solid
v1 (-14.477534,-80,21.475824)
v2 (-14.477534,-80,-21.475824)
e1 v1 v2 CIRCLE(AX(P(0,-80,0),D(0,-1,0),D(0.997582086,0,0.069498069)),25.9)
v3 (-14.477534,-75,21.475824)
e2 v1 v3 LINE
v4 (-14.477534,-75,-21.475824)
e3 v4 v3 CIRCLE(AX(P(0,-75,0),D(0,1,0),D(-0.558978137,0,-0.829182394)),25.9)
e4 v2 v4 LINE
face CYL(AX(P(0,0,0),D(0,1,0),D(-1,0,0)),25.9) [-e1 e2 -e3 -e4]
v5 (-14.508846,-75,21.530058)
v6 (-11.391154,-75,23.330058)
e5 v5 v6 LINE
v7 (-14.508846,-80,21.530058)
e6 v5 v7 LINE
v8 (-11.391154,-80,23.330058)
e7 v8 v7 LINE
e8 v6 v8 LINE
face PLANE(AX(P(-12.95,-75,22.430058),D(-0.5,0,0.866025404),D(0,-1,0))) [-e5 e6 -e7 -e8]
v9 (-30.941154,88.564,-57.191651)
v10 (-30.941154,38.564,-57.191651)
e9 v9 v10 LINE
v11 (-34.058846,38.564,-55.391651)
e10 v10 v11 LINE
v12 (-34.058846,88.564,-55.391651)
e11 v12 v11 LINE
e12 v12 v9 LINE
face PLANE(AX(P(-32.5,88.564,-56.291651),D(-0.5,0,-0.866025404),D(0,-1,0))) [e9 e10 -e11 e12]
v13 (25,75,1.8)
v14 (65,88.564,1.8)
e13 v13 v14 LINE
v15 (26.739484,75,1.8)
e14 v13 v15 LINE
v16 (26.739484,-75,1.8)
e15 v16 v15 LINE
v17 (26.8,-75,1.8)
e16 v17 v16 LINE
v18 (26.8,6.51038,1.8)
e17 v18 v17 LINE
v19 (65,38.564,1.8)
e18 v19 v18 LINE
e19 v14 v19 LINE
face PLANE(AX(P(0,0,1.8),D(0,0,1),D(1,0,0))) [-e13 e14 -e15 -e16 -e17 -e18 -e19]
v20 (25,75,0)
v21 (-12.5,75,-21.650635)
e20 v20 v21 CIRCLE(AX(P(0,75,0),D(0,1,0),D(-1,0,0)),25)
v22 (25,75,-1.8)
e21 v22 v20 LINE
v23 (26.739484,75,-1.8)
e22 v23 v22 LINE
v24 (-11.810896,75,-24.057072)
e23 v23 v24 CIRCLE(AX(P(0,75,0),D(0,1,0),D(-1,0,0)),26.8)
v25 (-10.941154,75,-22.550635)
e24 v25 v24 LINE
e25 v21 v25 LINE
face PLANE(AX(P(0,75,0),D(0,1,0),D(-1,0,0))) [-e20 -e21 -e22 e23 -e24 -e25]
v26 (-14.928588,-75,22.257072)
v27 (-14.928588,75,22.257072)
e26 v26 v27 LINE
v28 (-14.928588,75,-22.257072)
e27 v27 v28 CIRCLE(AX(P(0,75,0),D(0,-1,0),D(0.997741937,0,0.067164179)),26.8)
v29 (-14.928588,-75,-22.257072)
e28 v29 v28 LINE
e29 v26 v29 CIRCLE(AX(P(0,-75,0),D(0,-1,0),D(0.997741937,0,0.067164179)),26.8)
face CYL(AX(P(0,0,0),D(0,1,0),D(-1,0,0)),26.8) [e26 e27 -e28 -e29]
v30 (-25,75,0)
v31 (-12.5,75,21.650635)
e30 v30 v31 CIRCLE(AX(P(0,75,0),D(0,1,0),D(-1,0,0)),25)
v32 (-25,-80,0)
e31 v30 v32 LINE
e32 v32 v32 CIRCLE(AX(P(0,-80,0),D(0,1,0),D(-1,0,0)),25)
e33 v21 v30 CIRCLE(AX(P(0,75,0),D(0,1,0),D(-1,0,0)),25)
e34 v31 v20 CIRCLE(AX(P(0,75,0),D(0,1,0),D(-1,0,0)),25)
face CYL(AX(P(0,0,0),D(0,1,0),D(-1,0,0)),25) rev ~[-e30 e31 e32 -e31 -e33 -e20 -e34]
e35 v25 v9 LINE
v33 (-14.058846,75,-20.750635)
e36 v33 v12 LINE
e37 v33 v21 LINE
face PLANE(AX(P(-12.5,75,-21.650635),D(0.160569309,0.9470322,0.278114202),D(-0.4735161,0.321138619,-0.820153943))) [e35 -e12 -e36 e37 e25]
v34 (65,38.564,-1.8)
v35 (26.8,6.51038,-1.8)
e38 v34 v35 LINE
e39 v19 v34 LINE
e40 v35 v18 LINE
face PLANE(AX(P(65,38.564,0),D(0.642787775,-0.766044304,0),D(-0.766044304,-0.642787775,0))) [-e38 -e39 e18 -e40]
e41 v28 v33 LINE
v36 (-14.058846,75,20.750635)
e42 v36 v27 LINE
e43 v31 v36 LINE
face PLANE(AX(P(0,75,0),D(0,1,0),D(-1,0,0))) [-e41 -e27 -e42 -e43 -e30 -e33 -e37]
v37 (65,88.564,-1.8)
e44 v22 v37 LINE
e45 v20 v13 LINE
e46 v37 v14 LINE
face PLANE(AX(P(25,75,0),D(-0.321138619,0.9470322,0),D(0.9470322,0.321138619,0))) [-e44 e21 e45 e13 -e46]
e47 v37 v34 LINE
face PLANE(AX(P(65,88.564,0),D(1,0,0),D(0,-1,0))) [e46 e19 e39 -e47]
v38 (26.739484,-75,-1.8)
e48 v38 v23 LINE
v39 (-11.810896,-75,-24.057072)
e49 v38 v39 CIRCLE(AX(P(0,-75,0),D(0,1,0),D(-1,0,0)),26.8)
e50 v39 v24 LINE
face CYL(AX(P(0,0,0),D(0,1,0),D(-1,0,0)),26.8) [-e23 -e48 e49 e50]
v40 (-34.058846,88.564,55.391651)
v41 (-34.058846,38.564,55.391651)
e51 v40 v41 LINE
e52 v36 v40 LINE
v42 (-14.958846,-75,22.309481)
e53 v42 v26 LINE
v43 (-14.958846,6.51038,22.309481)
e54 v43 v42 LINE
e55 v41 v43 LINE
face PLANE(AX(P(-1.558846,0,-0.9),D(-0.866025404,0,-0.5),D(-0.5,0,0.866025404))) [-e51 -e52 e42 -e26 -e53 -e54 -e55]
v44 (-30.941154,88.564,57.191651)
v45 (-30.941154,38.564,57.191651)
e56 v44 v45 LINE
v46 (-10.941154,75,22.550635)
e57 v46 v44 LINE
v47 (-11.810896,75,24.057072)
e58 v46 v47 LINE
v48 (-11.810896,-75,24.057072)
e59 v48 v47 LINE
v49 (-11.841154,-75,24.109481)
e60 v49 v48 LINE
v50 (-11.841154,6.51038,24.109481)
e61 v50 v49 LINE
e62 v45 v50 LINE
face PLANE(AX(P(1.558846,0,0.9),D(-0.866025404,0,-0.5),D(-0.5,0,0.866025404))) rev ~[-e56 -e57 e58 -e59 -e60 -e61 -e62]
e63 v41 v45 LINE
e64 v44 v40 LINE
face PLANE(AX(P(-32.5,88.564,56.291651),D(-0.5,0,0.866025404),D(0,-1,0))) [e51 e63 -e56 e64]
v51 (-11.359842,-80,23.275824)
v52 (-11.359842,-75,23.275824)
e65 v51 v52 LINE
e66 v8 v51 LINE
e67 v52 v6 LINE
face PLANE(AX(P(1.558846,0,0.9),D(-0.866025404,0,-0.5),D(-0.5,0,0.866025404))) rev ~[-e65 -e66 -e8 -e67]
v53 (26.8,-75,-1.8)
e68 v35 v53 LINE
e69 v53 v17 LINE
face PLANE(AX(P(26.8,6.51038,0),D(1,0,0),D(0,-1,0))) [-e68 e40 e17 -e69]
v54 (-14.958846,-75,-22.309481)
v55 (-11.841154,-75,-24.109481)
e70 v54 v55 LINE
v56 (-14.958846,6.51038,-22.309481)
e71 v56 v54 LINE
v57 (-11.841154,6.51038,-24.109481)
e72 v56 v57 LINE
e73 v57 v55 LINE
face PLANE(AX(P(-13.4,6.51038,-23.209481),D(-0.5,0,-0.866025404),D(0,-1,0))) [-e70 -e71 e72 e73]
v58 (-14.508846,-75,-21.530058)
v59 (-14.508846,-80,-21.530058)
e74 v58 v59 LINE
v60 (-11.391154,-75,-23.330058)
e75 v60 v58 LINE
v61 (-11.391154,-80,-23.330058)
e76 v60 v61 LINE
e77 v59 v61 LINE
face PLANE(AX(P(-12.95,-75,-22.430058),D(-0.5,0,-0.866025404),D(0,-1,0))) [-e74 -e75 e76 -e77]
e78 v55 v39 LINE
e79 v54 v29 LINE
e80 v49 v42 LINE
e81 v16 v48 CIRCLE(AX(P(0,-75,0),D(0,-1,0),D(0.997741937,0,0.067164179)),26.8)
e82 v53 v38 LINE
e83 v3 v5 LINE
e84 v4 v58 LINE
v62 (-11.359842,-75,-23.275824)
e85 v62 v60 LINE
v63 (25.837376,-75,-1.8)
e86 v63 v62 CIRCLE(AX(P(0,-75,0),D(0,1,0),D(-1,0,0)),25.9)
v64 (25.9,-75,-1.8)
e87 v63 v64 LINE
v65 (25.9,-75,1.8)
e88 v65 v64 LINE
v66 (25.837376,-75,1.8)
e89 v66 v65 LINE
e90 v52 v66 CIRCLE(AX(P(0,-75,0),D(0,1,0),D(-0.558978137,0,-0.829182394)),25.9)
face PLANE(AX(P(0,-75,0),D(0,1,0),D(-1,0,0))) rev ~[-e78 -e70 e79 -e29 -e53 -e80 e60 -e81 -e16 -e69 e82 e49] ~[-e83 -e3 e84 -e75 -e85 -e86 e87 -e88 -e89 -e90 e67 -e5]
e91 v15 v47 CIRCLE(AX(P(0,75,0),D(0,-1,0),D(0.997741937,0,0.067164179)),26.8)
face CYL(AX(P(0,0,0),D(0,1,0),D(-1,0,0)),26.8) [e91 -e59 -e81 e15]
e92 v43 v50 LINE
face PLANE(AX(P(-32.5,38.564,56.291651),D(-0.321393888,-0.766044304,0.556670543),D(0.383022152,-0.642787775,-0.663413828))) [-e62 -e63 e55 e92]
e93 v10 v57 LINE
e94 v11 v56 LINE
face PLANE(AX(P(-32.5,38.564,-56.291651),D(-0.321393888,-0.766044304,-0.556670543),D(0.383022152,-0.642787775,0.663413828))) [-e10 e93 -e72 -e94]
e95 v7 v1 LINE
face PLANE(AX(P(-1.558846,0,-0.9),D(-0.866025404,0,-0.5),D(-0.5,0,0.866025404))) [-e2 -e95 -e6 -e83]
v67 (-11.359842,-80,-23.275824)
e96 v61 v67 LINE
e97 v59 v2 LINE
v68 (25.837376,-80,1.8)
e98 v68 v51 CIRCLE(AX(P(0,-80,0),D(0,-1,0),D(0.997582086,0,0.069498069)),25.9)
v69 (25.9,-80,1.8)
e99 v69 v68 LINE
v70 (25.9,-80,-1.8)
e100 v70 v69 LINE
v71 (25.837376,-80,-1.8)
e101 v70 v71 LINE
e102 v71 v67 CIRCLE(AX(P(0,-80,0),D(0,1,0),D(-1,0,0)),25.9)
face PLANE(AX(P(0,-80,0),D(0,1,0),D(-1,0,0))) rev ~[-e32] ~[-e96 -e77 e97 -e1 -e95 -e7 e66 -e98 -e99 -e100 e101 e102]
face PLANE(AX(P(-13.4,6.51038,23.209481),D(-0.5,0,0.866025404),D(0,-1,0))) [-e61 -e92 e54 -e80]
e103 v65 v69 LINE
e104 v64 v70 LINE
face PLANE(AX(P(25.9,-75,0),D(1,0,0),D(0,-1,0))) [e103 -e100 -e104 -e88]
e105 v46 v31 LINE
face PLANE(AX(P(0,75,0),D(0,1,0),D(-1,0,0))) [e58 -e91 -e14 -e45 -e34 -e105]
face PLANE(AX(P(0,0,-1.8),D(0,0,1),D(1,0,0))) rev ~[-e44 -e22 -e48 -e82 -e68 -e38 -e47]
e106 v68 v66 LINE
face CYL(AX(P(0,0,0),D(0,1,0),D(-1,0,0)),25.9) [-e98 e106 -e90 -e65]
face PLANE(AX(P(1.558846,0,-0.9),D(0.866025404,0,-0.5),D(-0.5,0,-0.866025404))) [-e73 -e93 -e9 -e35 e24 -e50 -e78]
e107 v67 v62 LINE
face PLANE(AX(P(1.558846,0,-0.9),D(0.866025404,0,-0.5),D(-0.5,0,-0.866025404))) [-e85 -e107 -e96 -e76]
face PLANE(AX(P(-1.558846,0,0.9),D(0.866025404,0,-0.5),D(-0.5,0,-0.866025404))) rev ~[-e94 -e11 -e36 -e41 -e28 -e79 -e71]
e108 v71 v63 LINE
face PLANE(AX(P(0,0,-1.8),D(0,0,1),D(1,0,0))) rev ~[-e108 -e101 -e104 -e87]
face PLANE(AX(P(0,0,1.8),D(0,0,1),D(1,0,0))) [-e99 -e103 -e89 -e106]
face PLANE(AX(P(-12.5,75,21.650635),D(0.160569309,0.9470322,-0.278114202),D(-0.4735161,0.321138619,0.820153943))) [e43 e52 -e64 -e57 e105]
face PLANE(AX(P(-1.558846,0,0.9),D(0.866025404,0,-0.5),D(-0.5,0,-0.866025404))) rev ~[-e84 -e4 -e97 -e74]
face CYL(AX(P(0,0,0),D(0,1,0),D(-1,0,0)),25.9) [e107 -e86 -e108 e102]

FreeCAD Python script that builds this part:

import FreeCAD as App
import Part
import Sketcher
from FreeCAD import Vector
Q = App.Units.Quantity


def add_polygon(sketch, points):
    """Adds a closed chain of lines whose ends are joined by coincident constraints."""
    first, n = sketch.GeometryCount, len(points)
    for a, b in zip(points, points[1:] + points[:1]):
        sketch.addGeometry(Part.LineSegment(App.Vector(*a, 0), App.Vector(*b, 0)), False)
    for i in range(n):
        sketch.addConstraint(Sketcher.Constraint("Coincident", first + i, 2, first + (i + 1) % n, 1))

doc = App.newDocument("Part")
body = doc.addObject("PartDesign::Body", "Body")

# Sketch on XZ plane
sketch1 = body.newObject("Sketcher::SketchObject", "Sketch")
sketch1.AttachmentSupport = (doc.getObject("XZ_Plane"), [""])
sketch1.MapMode = "FlatFace"
sketch1.addGeometry([
    Part.Circle(Vector(0, 0, 0), Vector(0, 0, 1), 25.9),
    Part.Circle(Vector(0, 0, 0), Vector(0, 0, 1), 25),
], False)
sketch1.addConstraint([
    Sketcher.Constraint("Coincident", 0, 3, -1, 1),
    Sketcher.Constraint("Coincident", 1, 3, -1, 1),
    Sketcher.Constraint("Diameter", 1, Q("50 mm")),
    Sketcher.Constraint("Diameter", 0, Q("51.8 mm")),
])
pad1 = body.newObject("PartDesign::Pad", "Pad")
pad1.Profile = sketch1
pad1.Type = "TwoLengths"
pad1.Length = 75
pad1.Length2 = 80
pad1.Reversed = True

# Sketch on XZ plane
sketch2 = body.newObject("Sketcher::SketchObject", "Sketch001")
sketch2.AttachmentSupport = (doc.getObject("XZ_Plane"), [""])
sketch2.MapMode = "FlatFace"
sketch2.addGeometry([
    Part.Circle(Vector(0, 0, 0), Vector(0, 0, 1), 26.8),
    Part.Circle(Vector(0, 0, 0), Vector(0, 0, 1), 25.9),
], False)
sketch2.addConstraint([
    Sketcher.Constraint("Coincident", 0, 3, -1, 1),
    Sketcher.Constraint("Coincident", 1, 3, -1, 1),
    Sketcher.Constraint("Diameter", 0, Q("53.6 mm")),
    Sketcher.Constraint("Diameter", 1, Q("51.8 mm")),
])
pad2 = body.newObject("PartDesign::Pad", "Pad001")
pad2.Profile = sketch2
pad2.Type = "TwoLengths"
pad2.Length = 75
pad2.Length2 = 75
pad2.Reversed = True

# Sketch on XY plane
sketch3 = body.newObject("Sketcher::SketchObject", "Sketch002")
sketch3.AttachmentSupport = (doc.getObject("XY_Plane"), [""])
sketch3.MapMode = "FlatFace"
add_polygon(sketch3, [(65, 38.564), (65, 88.564), (25, 75), (25, -80), (25.9, -80), (25.9, -75), (26.8, -75), (26.8, 6.51038)])  # lines 0-7
sketch3.addConstraint([
    Sketcher.Constraint("Vertical", 0),
    Sketcher.Constraint("Vertical", 2),
    Sketcher.Constraint("Horizontal", 3),
    Sketcher.Constraint("Vertical", 4),
    Sketcher.Constraint("Horizontal", 5),
    Sketcher.Constraint("Vertical", 6),
    Sketcher.Constraint("Equal", 3, 5),
    Sketcher.Constraint("DistanceY", 0, 1, 0, 2, Q("50 mm")),
    Sketcher.Constraint("Angle", 7, Q("40 deg")),
    Sketcher.Constraint("DistanceX", 1, 2, 0, 2, Q("40 mm")),
    Sketcher.Constraint("DistanceY", 2, 2, 2, 1, Q("155 mm")),
    Sketcher.Constraint("DistanceY", 4, 1, 4, 2, Q("5 mm")),
    Sketcher.Constraint("DistanceX", 3, 1, 3, 2, Q("0.9 mm")),
    Sketcher.Constraint("DistanceX", -1, 1, 0, 2, Q("65 mm")),
    Sketcher.Constraint("DistanceY", -1, 1, 1, 2, Q("75 mm")),
    Sketcher.Constraint("DistanceY", 6, 1, 6, 2, Q("81.5104 mm")),
])
pad3 = body.newObject("PartDesign::Pad", "Pad002")
pad3.Profile = sketch3
pad3.Length = 3.6
pad3.Midplane = True
doc.recompute()

polarpattern = body.newObject("PartDesign::PolarPattern", "PolarPattern")
polarpattern.Originals = [pad3]
polarpattern.Axis = (doc.getObject("Y_Axis"), [""])
polarpattern.Angle = 360
polarpattern.Occurrences = 3
body.Tip = polarpattern

doc.recompute()
